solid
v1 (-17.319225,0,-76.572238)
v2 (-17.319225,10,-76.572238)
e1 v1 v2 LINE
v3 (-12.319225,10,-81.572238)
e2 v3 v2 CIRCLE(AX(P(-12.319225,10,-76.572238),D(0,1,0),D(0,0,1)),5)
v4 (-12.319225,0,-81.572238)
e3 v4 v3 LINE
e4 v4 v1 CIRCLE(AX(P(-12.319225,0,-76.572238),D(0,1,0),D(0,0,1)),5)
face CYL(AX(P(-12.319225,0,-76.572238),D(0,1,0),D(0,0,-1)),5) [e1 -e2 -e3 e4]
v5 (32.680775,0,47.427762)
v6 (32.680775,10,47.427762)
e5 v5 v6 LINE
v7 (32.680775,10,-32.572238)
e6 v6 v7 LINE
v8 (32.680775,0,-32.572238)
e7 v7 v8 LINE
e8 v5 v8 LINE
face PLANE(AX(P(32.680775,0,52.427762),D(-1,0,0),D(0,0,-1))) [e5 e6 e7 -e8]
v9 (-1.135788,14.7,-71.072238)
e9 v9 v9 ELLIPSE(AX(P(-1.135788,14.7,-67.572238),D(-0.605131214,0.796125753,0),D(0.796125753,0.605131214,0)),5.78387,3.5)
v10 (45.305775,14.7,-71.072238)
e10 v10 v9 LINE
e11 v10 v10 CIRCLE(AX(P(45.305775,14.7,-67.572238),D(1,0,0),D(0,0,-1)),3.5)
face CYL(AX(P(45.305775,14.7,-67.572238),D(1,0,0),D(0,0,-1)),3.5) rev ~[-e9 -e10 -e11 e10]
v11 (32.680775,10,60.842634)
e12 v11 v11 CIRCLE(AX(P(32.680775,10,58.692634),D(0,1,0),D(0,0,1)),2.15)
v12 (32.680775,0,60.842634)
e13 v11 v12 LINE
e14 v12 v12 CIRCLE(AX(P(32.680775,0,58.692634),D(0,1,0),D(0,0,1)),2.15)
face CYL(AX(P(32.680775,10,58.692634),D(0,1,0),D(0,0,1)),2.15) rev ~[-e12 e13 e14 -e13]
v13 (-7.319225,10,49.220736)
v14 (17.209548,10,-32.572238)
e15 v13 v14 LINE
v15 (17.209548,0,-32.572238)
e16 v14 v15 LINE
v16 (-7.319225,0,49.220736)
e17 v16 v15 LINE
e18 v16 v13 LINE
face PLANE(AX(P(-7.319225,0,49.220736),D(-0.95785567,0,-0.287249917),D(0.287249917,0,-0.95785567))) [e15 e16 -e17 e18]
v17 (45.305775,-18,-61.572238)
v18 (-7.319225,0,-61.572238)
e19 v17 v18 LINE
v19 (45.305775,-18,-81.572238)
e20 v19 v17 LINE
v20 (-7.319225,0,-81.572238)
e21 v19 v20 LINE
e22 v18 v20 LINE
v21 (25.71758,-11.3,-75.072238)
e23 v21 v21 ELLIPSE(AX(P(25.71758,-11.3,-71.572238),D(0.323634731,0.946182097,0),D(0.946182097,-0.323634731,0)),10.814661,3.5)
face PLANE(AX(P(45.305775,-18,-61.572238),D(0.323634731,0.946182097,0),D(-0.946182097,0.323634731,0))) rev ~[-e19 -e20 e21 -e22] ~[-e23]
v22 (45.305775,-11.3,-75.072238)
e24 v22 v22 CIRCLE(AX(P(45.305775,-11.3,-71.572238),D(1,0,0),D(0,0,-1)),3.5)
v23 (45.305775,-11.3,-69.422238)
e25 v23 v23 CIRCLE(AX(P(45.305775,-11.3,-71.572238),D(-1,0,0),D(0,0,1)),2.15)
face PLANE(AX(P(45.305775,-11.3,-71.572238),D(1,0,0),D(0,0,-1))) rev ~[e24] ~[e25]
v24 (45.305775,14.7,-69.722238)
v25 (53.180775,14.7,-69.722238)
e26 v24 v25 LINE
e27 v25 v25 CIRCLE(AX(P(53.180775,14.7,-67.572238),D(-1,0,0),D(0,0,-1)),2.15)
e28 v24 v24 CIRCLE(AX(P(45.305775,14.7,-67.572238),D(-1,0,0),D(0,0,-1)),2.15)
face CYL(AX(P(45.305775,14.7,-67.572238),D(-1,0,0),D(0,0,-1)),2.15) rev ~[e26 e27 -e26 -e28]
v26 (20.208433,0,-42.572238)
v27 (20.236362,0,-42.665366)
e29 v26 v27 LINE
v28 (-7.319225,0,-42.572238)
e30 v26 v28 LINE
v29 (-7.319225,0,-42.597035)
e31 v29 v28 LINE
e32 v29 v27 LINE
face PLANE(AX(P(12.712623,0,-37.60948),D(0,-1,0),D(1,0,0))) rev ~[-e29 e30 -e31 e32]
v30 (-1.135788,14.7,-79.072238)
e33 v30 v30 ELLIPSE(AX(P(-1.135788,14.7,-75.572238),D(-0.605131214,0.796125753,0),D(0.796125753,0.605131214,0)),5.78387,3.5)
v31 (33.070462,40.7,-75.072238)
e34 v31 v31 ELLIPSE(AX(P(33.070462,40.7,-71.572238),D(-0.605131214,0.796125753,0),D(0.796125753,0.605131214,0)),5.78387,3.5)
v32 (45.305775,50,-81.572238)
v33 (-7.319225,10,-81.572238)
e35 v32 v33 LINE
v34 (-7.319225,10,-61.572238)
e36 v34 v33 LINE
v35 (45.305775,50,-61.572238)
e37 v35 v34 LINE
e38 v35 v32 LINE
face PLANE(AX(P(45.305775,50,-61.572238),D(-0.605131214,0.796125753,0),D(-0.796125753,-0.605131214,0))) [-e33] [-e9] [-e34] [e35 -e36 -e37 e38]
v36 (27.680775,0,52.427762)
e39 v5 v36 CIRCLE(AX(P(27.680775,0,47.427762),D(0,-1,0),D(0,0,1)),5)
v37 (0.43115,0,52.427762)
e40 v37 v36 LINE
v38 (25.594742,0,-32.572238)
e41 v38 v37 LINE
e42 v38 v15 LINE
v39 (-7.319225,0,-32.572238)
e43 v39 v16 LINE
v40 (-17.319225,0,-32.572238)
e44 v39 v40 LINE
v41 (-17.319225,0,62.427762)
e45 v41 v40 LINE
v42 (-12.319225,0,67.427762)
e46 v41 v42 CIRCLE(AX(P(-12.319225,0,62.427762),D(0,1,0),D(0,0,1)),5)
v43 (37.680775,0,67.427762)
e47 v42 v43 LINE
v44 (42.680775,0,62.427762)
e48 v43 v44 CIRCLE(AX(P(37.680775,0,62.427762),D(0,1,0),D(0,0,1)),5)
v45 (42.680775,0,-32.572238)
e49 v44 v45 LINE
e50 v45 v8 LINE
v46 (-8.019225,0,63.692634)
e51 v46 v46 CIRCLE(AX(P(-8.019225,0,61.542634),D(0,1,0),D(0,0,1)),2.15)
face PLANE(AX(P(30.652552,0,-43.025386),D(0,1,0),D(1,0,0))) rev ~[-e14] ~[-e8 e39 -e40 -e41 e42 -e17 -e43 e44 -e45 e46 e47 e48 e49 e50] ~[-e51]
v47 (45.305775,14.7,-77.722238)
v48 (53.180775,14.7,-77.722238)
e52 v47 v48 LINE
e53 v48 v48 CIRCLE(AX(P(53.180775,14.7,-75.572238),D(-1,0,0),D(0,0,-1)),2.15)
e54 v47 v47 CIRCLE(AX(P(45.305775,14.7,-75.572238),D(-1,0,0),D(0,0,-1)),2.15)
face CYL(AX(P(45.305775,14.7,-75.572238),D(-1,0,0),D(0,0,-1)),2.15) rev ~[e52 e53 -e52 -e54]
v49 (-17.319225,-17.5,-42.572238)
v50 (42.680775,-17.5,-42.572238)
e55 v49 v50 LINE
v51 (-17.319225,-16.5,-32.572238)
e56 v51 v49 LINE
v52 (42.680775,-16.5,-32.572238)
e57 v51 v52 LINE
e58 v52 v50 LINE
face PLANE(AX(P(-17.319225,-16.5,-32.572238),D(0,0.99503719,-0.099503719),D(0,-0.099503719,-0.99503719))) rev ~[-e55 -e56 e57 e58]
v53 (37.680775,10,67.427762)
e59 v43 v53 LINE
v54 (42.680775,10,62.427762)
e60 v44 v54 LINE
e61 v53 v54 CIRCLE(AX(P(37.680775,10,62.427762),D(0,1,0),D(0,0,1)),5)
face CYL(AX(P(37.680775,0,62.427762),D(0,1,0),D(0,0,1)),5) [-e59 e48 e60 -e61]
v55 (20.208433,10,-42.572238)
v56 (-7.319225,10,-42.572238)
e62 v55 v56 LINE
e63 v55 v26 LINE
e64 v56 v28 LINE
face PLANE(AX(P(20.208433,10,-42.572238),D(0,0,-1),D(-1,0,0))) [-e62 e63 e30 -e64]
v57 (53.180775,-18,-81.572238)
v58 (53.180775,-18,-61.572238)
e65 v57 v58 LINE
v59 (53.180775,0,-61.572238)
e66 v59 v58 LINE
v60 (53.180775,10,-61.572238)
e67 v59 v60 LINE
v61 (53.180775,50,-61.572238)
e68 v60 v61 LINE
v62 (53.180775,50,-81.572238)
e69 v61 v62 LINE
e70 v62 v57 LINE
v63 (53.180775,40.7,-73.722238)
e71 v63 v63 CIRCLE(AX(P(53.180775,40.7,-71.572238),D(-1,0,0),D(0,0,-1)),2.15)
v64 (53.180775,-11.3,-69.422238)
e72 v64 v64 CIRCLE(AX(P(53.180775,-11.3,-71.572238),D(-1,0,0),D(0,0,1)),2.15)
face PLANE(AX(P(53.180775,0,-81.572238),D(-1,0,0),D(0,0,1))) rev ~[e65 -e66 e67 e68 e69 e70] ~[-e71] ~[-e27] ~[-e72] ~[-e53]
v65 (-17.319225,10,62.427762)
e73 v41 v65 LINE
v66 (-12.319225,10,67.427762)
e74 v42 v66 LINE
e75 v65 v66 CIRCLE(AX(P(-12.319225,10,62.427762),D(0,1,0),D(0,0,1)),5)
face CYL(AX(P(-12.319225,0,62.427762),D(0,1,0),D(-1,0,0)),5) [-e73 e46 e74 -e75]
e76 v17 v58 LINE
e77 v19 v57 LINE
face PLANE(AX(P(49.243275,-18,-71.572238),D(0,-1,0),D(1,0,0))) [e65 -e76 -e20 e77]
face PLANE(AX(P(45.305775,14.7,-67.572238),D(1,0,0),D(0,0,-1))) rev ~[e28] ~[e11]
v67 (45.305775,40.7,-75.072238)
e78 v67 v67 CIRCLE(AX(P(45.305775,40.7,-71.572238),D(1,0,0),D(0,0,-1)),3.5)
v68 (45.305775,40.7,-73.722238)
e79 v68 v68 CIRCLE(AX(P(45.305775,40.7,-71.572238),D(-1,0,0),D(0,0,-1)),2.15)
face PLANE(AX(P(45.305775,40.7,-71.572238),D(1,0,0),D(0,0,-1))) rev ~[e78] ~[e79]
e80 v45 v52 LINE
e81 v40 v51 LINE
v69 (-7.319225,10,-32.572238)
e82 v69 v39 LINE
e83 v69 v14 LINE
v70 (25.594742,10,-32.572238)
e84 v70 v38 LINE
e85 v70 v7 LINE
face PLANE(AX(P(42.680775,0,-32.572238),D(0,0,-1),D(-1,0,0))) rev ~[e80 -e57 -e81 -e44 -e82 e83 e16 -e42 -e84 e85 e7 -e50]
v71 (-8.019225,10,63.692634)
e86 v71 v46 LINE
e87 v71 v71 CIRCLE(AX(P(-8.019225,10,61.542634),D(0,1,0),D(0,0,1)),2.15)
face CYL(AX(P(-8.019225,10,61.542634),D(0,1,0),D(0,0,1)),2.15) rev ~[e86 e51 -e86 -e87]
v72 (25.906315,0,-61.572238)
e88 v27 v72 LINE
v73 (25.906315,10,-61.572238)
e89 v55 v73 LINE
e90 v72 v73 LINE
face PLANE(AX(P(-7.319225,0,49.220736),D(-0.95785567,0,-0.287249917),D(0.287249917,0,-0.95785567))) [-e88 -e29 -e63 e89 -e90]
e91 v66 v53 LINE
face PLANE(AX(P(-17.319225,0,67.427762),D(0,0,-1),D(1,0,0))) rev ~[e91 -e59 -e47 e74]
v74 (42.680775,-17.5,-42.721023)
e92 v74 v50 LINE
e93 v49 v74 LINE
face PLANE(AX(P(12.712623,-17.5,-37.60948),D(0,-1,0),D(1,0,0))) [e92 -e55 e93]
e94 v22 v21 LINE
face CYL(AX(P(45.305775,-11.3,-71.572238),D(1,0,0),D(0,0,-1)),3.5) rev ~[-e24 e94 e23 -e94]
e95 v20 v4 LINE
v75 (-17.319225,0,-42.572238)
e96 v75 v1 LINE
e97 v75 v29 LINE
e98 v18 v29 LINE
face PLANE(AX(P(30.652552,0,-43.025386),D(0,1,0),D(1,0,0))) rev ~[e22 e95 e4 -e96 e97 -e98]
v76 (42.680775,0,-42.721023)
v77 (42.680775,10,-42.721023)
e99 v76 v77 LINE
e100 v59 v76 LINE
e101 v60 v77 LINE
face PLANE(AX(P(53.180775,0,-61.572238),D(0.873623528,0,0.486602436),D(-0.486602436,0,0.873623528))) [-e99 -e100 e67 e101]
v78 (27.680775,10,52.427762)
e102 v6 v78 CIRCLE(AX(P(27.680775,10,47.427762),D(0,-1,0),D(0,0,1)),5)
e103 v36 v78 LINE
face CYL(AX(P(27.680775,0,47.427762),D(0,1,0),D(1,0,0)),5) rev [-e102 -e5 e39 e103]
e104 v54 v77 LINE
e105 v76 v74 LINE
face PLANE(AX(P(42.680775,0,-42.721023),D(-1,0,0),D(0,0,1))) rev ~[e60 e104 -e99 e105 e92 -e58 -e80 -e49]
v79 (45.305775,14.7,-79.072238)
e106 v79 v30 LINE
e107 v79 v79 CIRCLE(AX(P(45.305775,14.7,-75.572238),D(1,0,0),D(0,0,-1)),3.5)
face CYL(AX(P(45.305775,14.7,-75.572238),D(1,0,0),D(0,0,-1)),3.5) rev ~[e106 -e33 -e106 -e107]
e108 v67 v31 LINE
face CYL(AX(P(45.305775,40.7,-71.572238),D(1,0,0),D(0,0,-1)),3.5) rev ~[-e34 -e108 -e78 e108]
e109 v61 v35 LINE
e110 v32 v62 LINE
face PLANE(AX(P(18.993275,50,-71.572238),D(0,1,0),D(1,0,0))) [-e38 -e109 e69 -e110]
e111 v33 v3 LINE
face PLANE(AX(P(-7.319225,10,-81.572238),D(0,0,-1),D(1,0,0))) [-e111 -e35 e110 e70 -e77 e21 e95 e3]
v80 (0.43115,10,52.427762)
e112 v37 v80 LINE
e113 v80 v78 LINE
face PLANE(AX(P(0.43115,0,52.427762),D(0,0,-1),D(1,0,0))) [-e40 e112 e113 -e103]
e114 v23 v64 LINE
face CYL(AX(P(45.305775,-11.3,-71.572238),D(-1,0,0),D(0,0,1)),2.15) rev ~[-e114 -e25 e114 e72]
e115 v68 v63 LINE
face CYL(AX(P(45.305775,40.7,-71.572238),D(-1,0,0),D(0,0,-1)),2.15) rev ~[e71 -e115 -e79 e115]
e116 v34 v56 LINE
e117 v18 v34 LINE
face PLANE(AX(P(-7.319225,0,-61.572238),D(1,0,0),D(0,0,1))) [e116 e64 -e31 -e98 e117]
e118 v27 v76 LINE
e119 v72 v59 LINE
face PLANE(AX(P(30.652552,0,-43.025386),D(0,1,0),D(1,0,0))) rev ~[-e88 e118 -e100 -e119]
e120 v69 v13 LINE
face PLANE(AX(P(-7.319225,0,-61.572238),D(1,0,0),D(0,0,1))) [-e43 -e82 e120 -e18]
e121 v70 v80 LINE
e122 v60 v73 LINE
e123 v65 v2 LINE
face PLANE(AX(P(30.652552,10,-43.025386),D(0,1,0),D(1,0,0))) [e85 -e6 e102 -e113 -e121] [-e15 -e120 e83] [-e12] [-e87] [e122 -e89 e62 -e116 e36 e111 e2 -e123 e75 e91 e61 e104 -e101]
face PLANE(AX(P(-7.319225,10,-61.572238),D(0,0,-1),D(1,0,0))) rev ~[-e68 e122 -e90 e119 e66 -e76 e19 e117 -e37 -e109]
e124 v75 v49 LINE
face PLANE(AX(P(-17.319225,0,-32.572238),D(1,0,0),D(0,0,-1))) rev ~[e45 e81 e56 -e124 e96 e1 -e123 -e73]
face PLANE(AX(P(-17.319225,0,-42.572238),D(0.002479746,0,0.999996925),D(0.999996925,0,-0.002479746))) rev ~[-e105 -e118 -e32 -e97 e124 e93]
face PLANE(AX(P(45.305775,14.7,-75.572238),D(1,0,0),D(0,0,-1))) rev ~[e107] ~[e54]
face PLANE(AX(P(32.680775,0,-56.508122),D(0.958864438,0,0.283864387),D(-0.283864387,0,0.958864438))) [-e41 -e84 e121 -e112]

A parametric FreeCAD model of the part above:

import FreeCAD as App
import Part
import Sketcher

V = App.Vector


def edges_at(feature, points):
    """Names of the edges that pass closest to the given points."""
    edges = feature.Shape.Edges
    near = lambda p: min(range(len(edges)), key=lambda i: edges[i].distToShape(Part.Vertex(*p))[0])
    return sorted({f"Edge{near(p) + 1}" for p in points})

doc = App.newDocument("Part")
body = doc.addObject("PartDesign::Body", "Body")

# Sketch on XZ plane
sketch1 = body.newObject("Sketcher::SketchObject", "Sketch")
sketch1.AttachmentSupport = (doc.getObject("XZ_Plane"), [""])
sketch1.MapMode = "FlatFace"
sketch1.addGeometry(Part.LineSegment(V(53, -82, 0), V(-17, -82, 0)), False)
sketch1.addGeometry(Part.LineSegment(V(-17, -82, 0), V(-17, 67, 0)), False)
sketch1.addGeometry(Part.LineSegment(V(-17, 67, 0), V(43, 67, 0)), False)
sketch1.addGeometry(Part.LineSegment(V(43, 67, 0), V(43, -43, 0)), False)
sketch1.addGeometry(Part.LineSegment(V(43, -43, 0), V(53, -62, 0)), False)
sketch1.addGeometry(Part.LineSegment(V(53, -62, 0), V(53, -82, 0)), False)
sketch1.addGeometry(Part.LineSegment(V(0, 52, 0), V(33, -57, 0)), False)
sketch1.addGeometry(Part.LineSegment(V(33, -57, 0), V(33, 52, 0)), False)
sketch1.addGeometry(Part.LineSegment(V(33, 52, 0), V(0, 52, 0)), False)
sketch1.addGeometry(Part.LineSegment(V(48, -62, 0), V(43, -53, 0)), False)
sketch1.addGeometry(Part.LineSegment(V(43, -53, 0), V(43, -62, 0)), False)
sketch1.addGeometry(Part.LineSegment(V(43, -62, 0), V(48, -62, 0)), False)
sketch1.addGeometry(Part.LineSegment(V(26, -62, 0), V(-7, 49, 0)), False)
sketch1.addGeometry(Part.LineSegment(V(-7, 49, 0), V(-7, -62, 0)), False)
sketch1.addGeometry(Part.LineSegment(V(-7, -62, 0), V(26, -62, 0)), False)
sketch1.addConstraint(Sketcher.Constraint("Coincident", 0, 2, 1, 1))
sketch1.addConstraint(Sketcher.Constraint("Coincident", 1, 2, 2, 1))
sketch1.addConstraint(Sketcher.Constraint("Coincident", 2, 2, 3, 1))
sketch1.addConstraint(Sketcher.Constraint("Coincident", 3, 2, 4, 1))
sketch1.addConstraint(Sketcher.Constraint("Coincident", 4, 2, 5, 1))
sketch1.addConstraint(Sketcher.Constraint("Coincident", 5, 2, 0, 1))
sketch1.addConstraint(Sketcher.Constraint("Coincident", 6, 2, 7, 1))
sketch1.addConstraint(Sketcher.Constraint("Coincident", 7, 2, 8, 1))
sketch1.addConstraint(Sketcher.Constraint("Coincident", 8, 2, 6, 1))
sketch1.addConstraint(Sketcher.Constraint("Coincident", 9, 2, 10, 1))
sketch1.addConstraint(Sketcher.Constraint("Coincident", 10, 2, 11, 1))
sketch1.addConstraint(Sketcher.Constraint("Coincident", 11, 2, 9, 1))
sketch1.addConstraint(Sketcher.Constraint("Coincident", 12, 2, 13, 1))
sketch1.addConstraint(Sketcher.Constraint("Coincident", 13, 2, 14, 1))
sketch1.addConstraint(Sketcher.Constraint("Coincident", 14, 2, 12, 1))
sketch1.addConstraint(Sketcher.Constraint("Horizontal", 0))
sketch1.addConstraint(Sketcher.Constraint("Vertical", 1))
sketch1.addConstraint(Sketcher.Constraint("Horizontal", 2))
sketch1.addConstraint(Sketcher.Constraint("Vertical", 3))
sketch1.addConstraint(Sketcher.Constraint("Vertical", 5))
sketch1.addConstraint(Sketcher.Constraint("Vertical", 7))
sketch1.addConstraint(Sketcher.Constraint("Horizontal", 8))
sketch1.addConstraint(Sketcher.Constraint("Vertical", 10))
sketch1.addConstraint(Sketcher.Constraint("Horizontal", 11))
sketch1.addConstraint(Sketcher.Constraint("Vertical", 13))
sketch1.addConstraint(Sketcher.Constraint("Horizontal", 14))
sketch1.addConstraint(Sketcher.Constraint("Horizontal", 4, 2, 10, 2))
sketch1.addConstraint(Sketcher.Constraint("Horizontal", 11, 2, 13, 2))
sketch1.addConstraint(Sketcher.Constraint("Vertical", 3, 2, 9, 2))
sketch1.addConstraint(Sketcher.Constraint("DistanceX", 2, 1, 2, 2, 60.0))
sketch1.addConstraint(Sketcher.Constraint("DistanceY", 1, 1, 1, 2, 149.0))
sketch1.addConstraint(Sketcher.Constraint("DistanceY", 5, 2, 5, 1, 20.0))
sketch1.addConstraint(Sketcher.Constraint("DistanceX", 0, 2, 0, 1, 70.5))
sketch1.addConstraint(Sketcher.Constraint("DistanceX", 6, 2, 3, 2, 10.0))
sketch1.addConstraint(Sketcher.Constraint("DistanceY", 7, 2, 2, 2, 15.0))
sketch1.addConstraint(Sketcher.Constraint("DistanceX", 1, 2, 12, 2, 10.0))
sketch1.addConstraint(Sketcher.Constraint("DistanceX", 11, 1, 11, 2, 5.25))
sketch1.addConstraint(Sketcher.Constraint("DistanceX", 14, 1, 14, 2, 33.225541))
sketch1.addConstraint(Sketcher.Constraint("DistanceY", 6, 2, 3, 2, 13.787099))
sketch1.addConstraint(Sketcher.Constraint("Distance", 4, 21.57819))
sketch1.addConstraint(Sketcher.Constraint("Distance", 12, 115.667712))
sketch1.addConstraint(Sketcher.Constraint("DistanceX", 8, 2, 8, 1, 32.249624))
sketch1.addConstraint(Sketcher.Constraint("DistanceY", 10, 2, 10, 1, 8.882742))
sketch1.addConstraint(Sketcher.Constraint("DistanceY", 6, 2, -1, 1, 56.508122))
sketch1.addConstraint(Sketcher.Constraint("DistanceX", -1, 1, 8, 2, 0.43115))
pad1 = body.newObject("PartDesign::Pad", "Pad")
pad1.Profile = sketch1
pad1.Length = 10
pad1.Reversed = True

# Sketch on XZ plane
sketch2 = body.newObject("Sketcher::SketchObject", "Sketch001")
sketch2.AttachmentSupport = (doc.getObject("XZ_Plane"), [""])
sketch2.MapMode = "FlatFace"
sketch2.AttachmentOffset = App.Placement(V(0, 0, -10), App.Rotation())
sketch2.addGeometry(Part.LineSegment(V(45, -82, 0), V(45, -62, 0)), False)
sketch2.addGeometry(Part.LineSegment(V(45, -62, 0), V(53, -62, 0)), False)
sketch2.addGeometry(Part.LineSegment(V(53, -62, 0), V(53, -82, 0)), False)
sketch2.addGeometry(Part.LineSegment(V(53, -82, 0), V(45, -82, 0)), False)
sketch2.addConstraint(Sketcher.Constraint("Coincident", 0, 2, 1, 1))
sketch2.addConstraint(Sketcher.Constraint("Coincident", 1, 2, 2, 1))
sketch2.addConstraint(Sketcher.Constraint("Coincident", 2, 2, 3, 1))
sketch2.addConstraint(Sketcher.Constraint("Coincident", 3, 2, 0, 1))
sketch2.addConstraint(Sketcher.Constraint("Vertical", 0))
sketch2.addConstraint(Sketcher.Constraint("Horizontal", 1))
sketch2.addConstraint(Sketcher.Constraint("Vertical", 2))
sketch2.addConstraint(Sketcher.Constraint("Horizontal", 3))
sketch2.addConstraint(Sketcher.Constraint("DistanceY", 0, 1, 0, 2, 20.0))
sketch2.addConstraint(Sketcher.Constraint("DistanceX", 1, 1, 1, 2, 7.875))
sketch2.addConstraint(Sketcher.Constraint("DistanceX", -1, 1, 0, 2, 45.305775))
sketch2.addConstraint(Sketcher.Constraint("DistanceY", 0, 2, -1, 1, 61.572238))
pad2 = body.newObject("PartDesign::Pad", "Pad001")
pad2.Profile = sketch2
pad2.Length = 40
pad2.Reversed = True

# Sketch on YZ plane
sketch3 = body.newObject("Sketcher::SketchObject", "Sketch002")
sketch3.AttachmentSupport = (doc.getObject("YZ_Plane"), [""])
sketch3.MapMode = "FlatFace"
sketch3.AttachmentOffset = App.Placement(V(0, 0, 45.305775), App.Rotation())
sketch3.addGeometry(Part.Circle(V(14.7, -75.6, 0), V(0, 0, 1), 2.1), False)
sketch3.addConstraint(Sketcher.Constraint("Diameter", 0, 4.3))
sketch3.addConstraint(Sketcher.Constraint("DistanceX", -1, 1, 0, 3, 14.7))
sketch3.addConstraint(Sketcher.Constraint("DistanceY", 0, 3, -1, 1, 75.572238))
pocket1 = body.newObject("PartDesign::Pocket", "Pocket")
pocket1.Profile = sketch3
pocket1.Type = "UpToFirst"
pocket1.Reversed = True

# Sketch on YZ plane
sketch4 = body.newObject("Sketcher::SketchObject", "Sketch003")
sketch4.AttachmentSupport = (doc.getObject("YZ_Plane"), [""])
sketch4.MapMode = "FlatFace"
sketch4.AttachmentOffset = App.Placement(V(0, 0, 45.305775), App.Rotation())
sketch4.addGeometry(Part.Circle(V(14.7, -67.6, 0), V(0, 0, 1), 2.1), False)
sketch4.addConstraint(Sketcher.Constraint("Diameter", 0, 4.3))
sketch4.addConstraint(Sketcher.Constraint("DistanceX", -1, 1, 0, 3, 14.7))
sketch4.addConstraint(Sketcher.Constraint("DistanceY", 0, 3, -1, 1, 67.572238))
pocket2 = body.newObject("PartDesign::Pocket", "Pocket001")
pocket2.Profile = sketch4
pocket2.Type = "UpToFirst"
pocket2.Reversed = True

# Sketch on YZ plane
sketch5 = body.newObject("Sketcher::SketchObject", "Sketch004")
sketch5.AttachmentSupport = (doc.getObject("YZ_Plane"), [""])
sketch5.MapMode = "FlatFace"
sketch5.AttachmentOffset = App.Placement(V(0, 0, 45.305775), App.Rotation())
sketch5.addGeometry(Part.Circle(V(40.7, -71.6, 0), V(0, 0, 1), 2.1), False)
sketch5.addConstraint(Sketcher.Constraint("Diameter", 0, 4.3))
sketch5.addConstraint(Sketcher.Constraint("DistanceX", -1, 1, 0, 3, 40.7))
sketch5.addConstraint(Sketcher.Constraint("DistanceY", 0, 3, -1, 1, 71.572238))
pocket3 = body.newObject("PartDesign::Pocket", "Pocket002")
pocket3.Profile = sketch5
pocket3.Type = "UpToFirst"
pocket3.Reversed = True

# Sketch on YZ plane
sketch6 = body.newObject("Sketcher::SketchObject", "Sketch005")
sketch6.AttachmentSupport = (doc.getObject("YZ_Plane"), [""])
sketch6.MapMode = "FlatFace"
sketch6.AttachmentOffset = App.Placement(V(0, 0, 45.305775), App.Rotation())
sketch6.addGeometry(Part.Circle(V(14.7, -75.6, 0), V(0, 0, 1), 2.1), False)
sketch6.addGeometry(Part.Circle(V(14.7, -67.6, 0), V(0, 0, 1), 2.1), False)
sketch6.addGeometry(Part.Circle(V(40.7, -71.6, 0), V(0, 0, 1), 2.1), False)
sketch6.addConstraint(Sketcher.Constraint("Equal", 0, 1))
sketch6.addConstraint(Sketcher.Constraint("Equal", 1, 2))
sketch6.addConstraint(Sketcher.Constraint("Vertical", 0, 3, 1, 3))
sketch6.addConstraint(Sketcher.Constraint("Diameter", 0, 4.3))
sketch6.addConstraint(Sketcher.Constraint("DistanceY", 0, 3, 1, 3, 8.0))
sketch6.addConstraint(Sketcher.Constraint("DistanceX", 0, 3, 2, 3, 26.0))
sketch6.addConstraint(Sketcher.Constraint("DistanceY", 0, 3, 2, 3, 4.0))
sketch6.addConstraint(Sketcher.Constraint("DistanceX", -1, 1, 0, 3, 14.7))
sketch6.addConstraint(Sketcher.Constraint("DistanceY", 0, 3, -1, 1, 75.572238))
pocket4 = body.newObject("PartDesign::Pocket", "Pocket003")
pocket4.Profile = sketch6
pocket4.Length = 53

# Sketch on XZ plane
sketch7 = body.newObject("Sketcher::SketchObject", "Sketch006")
sketch7.AttachmentSupport = (doc.getObject("XZ_Plane"), [""])
sketch7.MapMode = "FlatFace"
sketch7.AttachmentOffset = App.Placement(V(0, 0, -10), App.Rotation())
sketch7.addGeometry(Part.Circle(V(-8, 61.5, 0), V(0, 0, 1), 2.1), False)
sketch7.addConstraint(Sketcher.Constraint("Diameter", 0, 4.3))
sketch7.addConstraint(Sketcher.Constraint("DistanceX", 0, 3, -1, 1, 8.019225))
sketch7.addConstraint(Sketcher.Constraint("DistanceY", -1, 1, 0, 3, 61.542634))
pocket5 = body.newObject("PartDesign::Pocket", "Pocket004")
pocket5.Profile = sketch7
pocket5.Type = "UpToFirst"
pocket5.Reversed = True

# Sketch on XZ plane
sketch8 = body.newObject("Sketcher::SketchObject", "Sketch007")
sketch8.AttachmentSupport = (doc.getObject("XZ_Plane"), [""])
sketch8.MapMode = "FlatFace"
sketch8.AttachmentOffset = App.Placement(V(0, 0, -10), App.Rotation())
sketch8.addGeometry(Part.Circle(V(32.7, 58.7, 0), V(0, 0, 1), 2.1), False)
sketch8.addConstraint(Sketcher.Constraint("Diameter", 0, 4.3))
sketch8.addConstraint(Sketcher.Constraint("DistanceX", -1, 1, 0, 3, 32.680775))
sketch8.addConstraint(Sketcher.Constraint("DistanceY", -1, 1, 0, 3, 58.692634))
pocket6 = body.newObject("PartDesign::Pocket", "Pocket005")
pocket6.Profile = sketch8
pocket6.Type = "UpToFirst"
pocket6.Reversed = True
doc.recompute()

fillet = body.newObject("PartDesign::Fillet", "Fillet")
fillet.Base = (pocket6, edges_at(pocket6, [(-17.319, 5, 67.428), (-17.319, 5, -81.572), (42.681, 5, 67.428)]))
fillet.Radius = 5
doc.recompute()

fillet2 = body.newObject("PartDesign::Fillet", "Fillet001")
fillet2.Base = (fillet, edges_at(fillet, [(32.681, 5, 52.428)]))
fillet2.Radius = 5

# Sketch on XZ plane
sketch9 = body.newObject("Sketcher::SketchObject", "Sketch008")
sketch9.AttachmentSupport = (doc.getObject("XZ_Plane"), [""])
sketch9.MapMode = "FlatFace"
sketch9.addGeometry(Part.LineSegment(V(45, -62, 0), V(45, -82, 0)), False)
sketch9.addGeometry(Part.LineSegment(V(45, -82, 0), V(53, -82, 0)), False)
sketch9.addGeometry(Part.LineSegment(V(53, -82, 0), V(53, -62, 0)), False)
sketch9.addGeometry(Part.LineSegment(V(53, -62, 0), V(45, -62, 0)), False)
sketch9.addConstraint(Sketcher.Constraint("Coincident", 0, 2, 1, 1))
sketch9.addConstraint(Sketcher.Constraint("Coincident", 1, 2, 2, 1))
sketch9.addConstraint(Sketcher.Constraint("Coincident", 2, 2, 3, 1))
sketch9.addConstraint(Sketcher.Constraint("Coincident", 3, 2, 0, 1))
sketch9.addConstraint(Sketcher.Constraint("Vertical", 0))
sketch9.addConstraint(Sketcher.Constraint("Horizontal", 1))
sketch9.addConstraint(Sketcher.Constraint("Vertical", 2))
sketch9.addConstraint(Sketcher.Constraint("Horizontal", 3))
sketch9.addConstraint(Sketcher.Constraint("DistanceY", 0, 2, 0, 1, 20.0))
sketch9.addConstraint(Sketcher.Constraint("DistanceX", 1, 1, 1, 2, 7.875))
sketch9.addConstraint(Sketcher.Constraint("DistanceX", -1, 1, 0, 2, 45.305775))
sketch9.addConstraint(Sketcher.Constraint("DistanceY", 0, 2, -1, 1, 81.572238))
pad3 = body.newObject("PartDesign::Pad", "Pad002")
pad3.Profile = sketch9
pad3.Length = 18

# Sketch on YZ plane
sketch10 = body.newObject("Sketcher::SketchObject", "Sketch009")
sketch10.AttachmentSupport = (doc.getObject("YZ_Plane"), [""])
sketch10.MapMode = "FlatFace"
sketch10.AttachmentOffset = App.Placement(V(0, 0, 45.305775), App.Rotation())
sketch10.addGeometry(Part.Circle(V(-11.3, -71.6, 0), V(0, 0, 1), 2.1), False)
sketch10.addConstraint(Sketcher.Constraint("Diameter", 0, 4.3))
sketch10.addConstraint(Sketcher.Constraint("DistanceX", 0, 3, -1, 1, 11.3))
sketch10.addConstraint(Sketcher.Constraint("DistanceY", 0, 3, -1, 1, 71.572238))
pocket7 = body.newObject("PartDesign::Pocket", "Pocket006")
pocket7.Profile = sketch10
pocket7.Type = "UpToFirst"
pocket7.Reversed = True

# Sketch on XY plane
sketch11 = body.newObject("Sketcher::SketchObject", "Sketch010")
sketch11.AttachmentSupport = (doc.getObject("XY_Plane"), [""])
sketch11.MapMode = "FlatFace"
sketch11.AttachmentOffset = App.Placement(V(0, 0, -61.572238), App.Rotation())
sketch11.addGeometry(Part.LineSegment(V(45, -18, 0), V(45, 0, 0)), False)
sketch11.addGeometry(Part.LineSegment(V(45, 0, 0), V(-7, 0, 0)), False)
sketch11.addGeometry(Part.LineSegment(V(-7, 0, 0), V(45, -18, 0)), False)
sketch11.addConstraint(Sketcher.Constraint("Coincident", 0, 2, 1, 1))
sketch11.addConstraint(Sketcher.Constraint("Coincident", 1, 2, 2, 1))
sketch11.addConstraint(Sketcher.Constraint("Coincident", 2, 2, 0, 1))
sketch11.addConstraint(Sketcher.Constraint("Vertical", 0))
sketch11.addConstraint(Sketcher.Constraint("Horizontal", 1))
sketch11.addConstraint(Sketcher.Constraint("PointOnObject", 0, 2, -1))
sketch11.addConstraint(Sketcher.Constraint("DistanceY", 0, 1, 0, 2, 18.0))
sketch11.addConstraint(Sketcher.Constraint("DistanceX", 1, 2, 1, 1, 52.625))
sketch11.addConstraint(Sketcher.Constraint("DistanceX", -1, 1, 0, 2, 45.305775))
pad4 = body.newObject("PartDesign::Pad", "Pad003")
pad4.Profile = sketch11
pad4.Length = 20
pad4.Reversed = True

# Sketch on XZ plane
sketch12 = body.newObject("Sketcher::SketchObject", "Sketch011")
sketch12.AttachmentSupport = (doc.getObject("XZ_Plane"), [""])
sketch12.MapMode = "FlatFace"
sketch12.AttachmentOffset = App.Placement(V(0, 0, -10), App.Rotation())
sketch12.addGeometry(Part.LineSegment(V(-7, -82, 0), V(-7, -62, 0)), False)
sketch12.addGeometry(Part.LineSegment(V(-7, -62, 0), V(45, -62, 0)), False)
sketch12.addGeometry(Part.LineSegment(V(45, -62, 0), V(45, -82, 0)), False)
sketch12.addGeometry(Part.LineSegment(V(45, -82, 0), V(-7, -82, 0)), False)
sketch12.addConstraint(Sketcher.Constraint("Coincident", 0, 2, 1, 1))
sketch12.addConstraint(Sketcher.Constraint("Coincident", 1, 2, 2, 1))
sketch12.addConstraint(Sketcher.Constraint("Coincident", 2, 2, 3, 1))
sketch12.addConstraint(Sketcher.Constraint("Coincident", 3, 2, 0, 1))
sketch12.addConstraint(Sketcher.Constraint("Vertical", 0))
sketch12.addConstraint(Sketcher.Constraint("Horizontal", 1))
sketch12.addConstraint(Sketcher.Constraint("Vertical", 2))
sketch12.addConstraint(Sketcher.Constraint("Horizontal", 3))
sketch12.addConstraint(Sketcher.Constraint("DistanceY", 0, 1, 0, 2, 20.0))
sketch12.addConstraint(Sketcher.Constraint("DistanceX", 1, 1, 1, 2, 52.625))
sketch12.addConstraint(Sketcher.Constraint("DistanceX", 0, 2, -1, 1, 7.319225))
sketch12.addConstraint(Sketcher.Constraint("DistanceY", 0, 2, -1, 1, 61.572238))
pad5 = body.newObject("PartDesign::Pad", "Pad004")
pad5.Profile = sketch12
pad5.Length = 40
pad5.Reversed = True

# Sketch on YZ plane
sketch13 = body.newObject("Sketcher::SketchObject", "Sketch012")
sketch13.AttachmentSupport = (doc.getObject("YZ_Plane"), [""])
sketch13.MapMode = "FlatFace"
sketch13.AttachmentOffset = App.Placement(V(0, 0, 45.305775), App.Rotation())
sketch13.addGeometry(Part.Circle(V(40.7, -71.6, 0), V(0, 0, 1), 3.5), False)
sketch13.addGeometry(Part.Circle(V(14.7, -67.6, 0), V(0, 0, 1), 3.5), False)
sketch13.addGeometry(Part.Circle(V(14.7, -75.6, 0), V(0, 0, 1), 3.5), False)
sketch13.addGeometry(Part.Circle(V(-11.3, -71.6, 0), V(0, 0, 1), 3.5), False)
sketch13.addConstraint(Sketcher.Constraint("Equal", 0, 1))
sketch13.addConstraint(Sketcher.Constraint("Equal", 1, 2))
sketch13.addConstraint(Sketcher.Constraint("Equal", 2, 3))
sketch13.addConstraint(Sketcher.Constraint("Horizontal", 0, 3, 3, 3))
sketch13.addConstraint(Sketcher.Constraint("Vertical", 1, 3, 2, 3))
sketch13.addConstraint(Sketcher.Constraint("Diameter", 0, 7.0))
sketch13.addConstraint(Sketcher.Constraint("DistanceX", 1, 3, 0, 3, 26.0))
sketch13.addConstraint(Sketcher.Constraint("DistanceY", 0, 3, 1, 3, 4.0))
sketch13.addConstraint(Sketcher.Constraint("DistanceY", 2, 3, 1, 3, 8.0))
sketch13.addConstraint(Sketcher.Constraint("DistanceX", 3, 3, 1, 3, 26.0))
sketch13.addConstraint(Sketcher.Constraint("DistanceX", -1, 1, 0, 3, 40.7))
sketch13.addConstraint(Sketcher.Constraint("DistanceY", 0, 3, -1, 1, 71.572238))
pocket8 = body.newObject("PartDesign::Pocket", "Pocket007")
pocket8.Profile = sketch13
pocket8.Length = 54

# Sketch on XY plane
sketch14 = body.newObject("Sketcher::SketchObject", "Sketch013")
sketch14.AttachmentSupport = (doc.getObject("XY_Plane"), [""])
sketch14.MapMode = "FlatFace"
sketch14.AttachmentOffset = App.Placement(V(0, 0, -61.572238), App.Rotation())
sketch14.addGeometry(Part.LineSegment(V(-7, 50, 0), V(-7, 10, 0)), False)
sketch14.addGeometry(Part.LineSegment(V(-7, 10, 0), V(45, 50, 0)), False)
sketch14.addGeometry(Part.LineSegment(V(45, 50, 0), V(-7, 50, 0)), False)
sketch14.addConstraint(Sketcher.Constraint("Coincident", 0, 2, 1, 1))
sketch14.addConstraint(Sketcher.Constraint("Coincident", 1, 2, 2, 1))
sketch14.addConstraint(Sketcher.Constraint("Coincident", 2, 2, 0, 1))
sketch14.addConstraint(Sketcher.Constraint("Vertical", 0))
sketch14.addConstraint(Sketcher.Constraint("Horizontal", 2))
sketch14.addConstraint(Sketcher.Constraint("DistanceY", 0, 2, 0, 1, 40.0))
sketch14.addConstraint(Sketcher.Constraint("DistanceY", -1, 1, 0, 2, 10.0))
sketch14.addConstraint(Sketcher.Constraint("DistanceX", 2, 2, 2, 1, 52.625))
sketch14.addConstraint(Sketcher.Constraint("DistanceX", 0, 2, -1, 1, 7.319225))
pocket9 = body.newObject("PartDesign::Pocket", "Pocket008")
pocket9.Profile = sketch14
pocket9.Length = 20

# Sketch on XZ plane
sketch15 = body.newObject("Sketcher::SketchObject", "Sketch014")
sketch15.AttachmentSupport = (doc.getObject("XZ_Plane"), [""])
sketch15.MapMode = "FlatFace"
sketch15.AttachmentOffset = App.Placement(V(0, 0, -10), App.Rotation())
sketch15.addGeometry(Part.LineSegment(V(-7, -33, 0), V(17, -33, 0)), False)
sketch15.addGeometry(Part.LineSegment(V(17, -33, 0), V(20, -43, 0)), False)
sketch15.addGeometry(Part.LineSegment(V(20, -43, 0), V(-7, -43, 0)), False)
sketch15.addGeometry(Part.LineSegment(V(-7, -43, 0), V(-7, -33, 0)), False)
sketch15.addGeometry(Part.LineSegment(V(26, -33, 0), V(33, -33, 0)), False)
sketch15.addGeometry(Part.LineSegment(V(33, -33, 0), V(33, -57, 0)), False)
sketch15.addGeometry(Part.LineSegment(V(33, -57, 0), V(26, -33, 0)), False)
sketch15.addGeometry(Part.LineSegment(V(43, -62, 0), V(43, -53, 0)), False)
sketch15.addGeometry(Part.LineSegment(V(43, -53, 0), V(48, -62, 0)), False)
sketch15.addGeometry(Part.LineSegment(V(48, -62, 0), V(43, -62, 0)), False)
sketch15.addConstraint(Sketcher.Constraint("Coincident", 0, 2, 1, 1))
sketch15.addConstraint(Sketcher.Constraint("Coincident", 1, 2, 2, 1))
sketch15.addConstraint(Sketcher.Constraint("Coincident", 2, 2, 3, 1))
sketch15.addConstraint(Sketcher.Constraint("Coincident", 3, 2, 0, 1))
sketch15.addConstraint(Sketcher.Constraint("Coincident", 4, 2, 5, 1))
sketch15.addConstraint(Sketcher.Constraint("Coincident", 5, 2, 6, 1))
sketch15.addConstraint(Sketcher.Constraint("Coincident", 6, 2, 4, 1))
sketch15.addConstraint(Sketcher.Constraint("Coincident", 7, 2, 8, 1))
sketch15.addConstraint(Sketcher.Constraint("Coincident", 8, 2, 9, 1))
sketch15.addConstraint(Sketcher.Constraint("Coincident", 9, 2, 7, 1))
sketch15.addConstraint(Sketcher.Constraint("Horizontal", 0))
sketch15.addConstraint(Sketcher.Constraint("Horizontal", 2))
sketch15.addConstraint(Sketcher.Constraint("Vertical", 3))
sketch15.addConstraint(Sketcher.Constraint("Horizontal", 4))
sketch15.addConstraint(Sketcher.Constraint("Vertical", 5))
sketch15.addConstraint(Sketcher.Constraint("Vertical", 7))
sketch15.addConstraint(Sketcher.Constraint("Horizontal", 9))
sketch15.addConstraint(Sketcher.Constraint("Horizontal", 3, 2, 4, 2))
sketch15.addConstraint(Sketcher.Constraint("DistanceY", 3, 1, 3, 2, 10.0))
sketch15.addConstraint(Sketcher.Constraint("DistanceX", 3, 2, 4, 2, 40.0))
sketch15.addConstraint(Sketcher.Constraint("DistanceX", 5, 2, 7, 2, 10.0))
sketch15.addConstraint(Sketcher.Constraint("DistanceY", 8, 2, 4, 2, 29.0))
sketch15.addConstraint(Sketcher.Constraint("DistanceX", 9, 2, 9, 1, 5.25))
sketch15.addConstraint(Sketcher.Constraint("DistanceX", 2, 2, 2, 1, 27.527659))
sketch15.addConstraint(Sketcher.Constraint("Distance", 6, 24.962741))
sketch15.addConstraint(Sketcher.Constraint("DistanceX", 0, 1, 0, 2, 24.528774))
sketch15.addConstraint(Sketcher.Constraint("DistanceX", 4, 1, 4, 2, 7.086033))
sketch15.addConstraint(Sketcher.Constraint("DistanceY", 7, 1, 7, 2, 8.882742))
sketch15.addConstraint(Sketcher.Constraint("DistanceX", -1, 1, 0, 2, 17.209548))
sketch15.addConstraint(Sketcher.Constraint("DistanceY", 5, 2, -1, 1, 56.508122))
pad6 = body.newObject("PartDesign::Pad", "Pad005")
pad6.Profile = sketch15
pad6.Length = 10

# Sketch on XZ plane
sketch16 = body.newObject("Sketcher::SketchObject", "Sketch015")
sketch16.AttachmentSupport = (doc.getObject("XZ_Plane"), [""])
sketch16.MapMode = "FlatFace"
sketch16.addGeometry(Part.LineSegment(V(-17, -33, 0), V(-17, -43, 0)), False)
sketch16.addGeometry(Part.LineSegment(V(-17, -43, 0), V(43, -43, 0)), False)
sketch16.addGeometry(Part.LineSegment(V(43, -43, 0), V(43, -33, 0)), False)
sketch16.addGeometry(Part.LineSegment(V(43, -33, 0), V(-17, -33, 0)), False)
sketch16.addConstraint(Sketcher.Constraint("Coincident", 0, 2, 1, 1))
sketch16.addConstraint(Sketcher.Constraint("Coincident", 1, 2, 2, 1))
sketch16.addConstraint(Sketcher.Constraint("Coincident", 2, 2, 3, 1))
sketch16.addConstraint(Sketcher.Constraint("Coincident", 3, 2, 0, 1))
sketch16.addConstraint(Sketcher.Constraint("Vertical", 0))
sketch16.addConstraint(Sketcher.Constraint("Vertical", 2))
sketch16.addConstraint(Sketcher.Constraint("Horizontal", 3))
sketch16.addConstraint(Sketcher.Constraint("DistanceX", 3, 2, 3, 1, 60.0))
sketch16.addConstraint(Sketcher.Constraint("DistanceY", 0, 2, 0, 1, 10.0))
sketch16.addConstraint(Sketcher.Constraint("DistanceY", 2, 1, 2, 2, 10.148785))
sketch16.addConstraint(Sketcher.Constraint("DistanceX", 0, 2, -1, 1, 17.319225))
sketch16.addConstraint(Sketcher.Constraint("DistanceY", 0, 2, -1, 1, 42.572238))
pad7 = body.newObject("PartDesign::Pad", "Pad006")
pad7.Profile = sketch16
pad7.Length = 17.5

# Sketch on YZ plane
sketch17 = body.newObject("Sketcher::SketchObject", "Sketch016")
sketch17.AttachmentSupport = (doc.getObject("YZ_Plane"), [""])
sketch17.MapMode = "FlatFace"
sketch17.AttachmentOffset = App.Placement(V(0, 0, -17.319225), App.Rotation())
sketch17.addGeometry(Part.LineSegment(V(-17.5, -42.6, 0), V(-17.5, -32.6, 0)), False)
sketch17.addGeometry(Part.LineSegment(V(-17.5, -32.6, 0), V(-16.5, -32.6, 0)), False)
sketch17.addGeometry(Part.LineSegment(V(-16.5, -32.6, 0), V(-17.5, -42.6, 0)), False)
sketch17.addConstraint(Sketcher.Constraint("Coincident", 0, 2, 1, 1))
sketch17.addConstraint(Sketcher.Constraint("Coincident", 1, 2, 2, 1))
sketch17.addConstraint(Sketcher.Constraint("Coincident", 2, 2, 0, 1))
sketch17.addConstraint(Sketcher.Constraint("Vertical", 0))
sketch17.addConstraint(Sketcher.Constraint("Horizontal", 1))
sketch17.addConstraint(Sketcher.Constraint("DistanceX", 1, 1, 1, 2, 1.0))
sketch17.addConstraint(Sketcher.Constraint("DistanceY", 0, 1, 0, 2, 10.0))
sketch17.addConstraint(Sketcher.Constraint("DistanceX", 0, 2, -1, 1, 17.5))
sketch17.addConstraint(Sketcher.Constraint("DistanceY", 0, 2, -1, 1, 32.572238))
pocket10 = body.newObject("PartDesign::Pocket", "Pocket009")
pocket10.Profile = sketch17
pocket10.Length = 64
pocket10.Reversed = True

doc.recompute()
